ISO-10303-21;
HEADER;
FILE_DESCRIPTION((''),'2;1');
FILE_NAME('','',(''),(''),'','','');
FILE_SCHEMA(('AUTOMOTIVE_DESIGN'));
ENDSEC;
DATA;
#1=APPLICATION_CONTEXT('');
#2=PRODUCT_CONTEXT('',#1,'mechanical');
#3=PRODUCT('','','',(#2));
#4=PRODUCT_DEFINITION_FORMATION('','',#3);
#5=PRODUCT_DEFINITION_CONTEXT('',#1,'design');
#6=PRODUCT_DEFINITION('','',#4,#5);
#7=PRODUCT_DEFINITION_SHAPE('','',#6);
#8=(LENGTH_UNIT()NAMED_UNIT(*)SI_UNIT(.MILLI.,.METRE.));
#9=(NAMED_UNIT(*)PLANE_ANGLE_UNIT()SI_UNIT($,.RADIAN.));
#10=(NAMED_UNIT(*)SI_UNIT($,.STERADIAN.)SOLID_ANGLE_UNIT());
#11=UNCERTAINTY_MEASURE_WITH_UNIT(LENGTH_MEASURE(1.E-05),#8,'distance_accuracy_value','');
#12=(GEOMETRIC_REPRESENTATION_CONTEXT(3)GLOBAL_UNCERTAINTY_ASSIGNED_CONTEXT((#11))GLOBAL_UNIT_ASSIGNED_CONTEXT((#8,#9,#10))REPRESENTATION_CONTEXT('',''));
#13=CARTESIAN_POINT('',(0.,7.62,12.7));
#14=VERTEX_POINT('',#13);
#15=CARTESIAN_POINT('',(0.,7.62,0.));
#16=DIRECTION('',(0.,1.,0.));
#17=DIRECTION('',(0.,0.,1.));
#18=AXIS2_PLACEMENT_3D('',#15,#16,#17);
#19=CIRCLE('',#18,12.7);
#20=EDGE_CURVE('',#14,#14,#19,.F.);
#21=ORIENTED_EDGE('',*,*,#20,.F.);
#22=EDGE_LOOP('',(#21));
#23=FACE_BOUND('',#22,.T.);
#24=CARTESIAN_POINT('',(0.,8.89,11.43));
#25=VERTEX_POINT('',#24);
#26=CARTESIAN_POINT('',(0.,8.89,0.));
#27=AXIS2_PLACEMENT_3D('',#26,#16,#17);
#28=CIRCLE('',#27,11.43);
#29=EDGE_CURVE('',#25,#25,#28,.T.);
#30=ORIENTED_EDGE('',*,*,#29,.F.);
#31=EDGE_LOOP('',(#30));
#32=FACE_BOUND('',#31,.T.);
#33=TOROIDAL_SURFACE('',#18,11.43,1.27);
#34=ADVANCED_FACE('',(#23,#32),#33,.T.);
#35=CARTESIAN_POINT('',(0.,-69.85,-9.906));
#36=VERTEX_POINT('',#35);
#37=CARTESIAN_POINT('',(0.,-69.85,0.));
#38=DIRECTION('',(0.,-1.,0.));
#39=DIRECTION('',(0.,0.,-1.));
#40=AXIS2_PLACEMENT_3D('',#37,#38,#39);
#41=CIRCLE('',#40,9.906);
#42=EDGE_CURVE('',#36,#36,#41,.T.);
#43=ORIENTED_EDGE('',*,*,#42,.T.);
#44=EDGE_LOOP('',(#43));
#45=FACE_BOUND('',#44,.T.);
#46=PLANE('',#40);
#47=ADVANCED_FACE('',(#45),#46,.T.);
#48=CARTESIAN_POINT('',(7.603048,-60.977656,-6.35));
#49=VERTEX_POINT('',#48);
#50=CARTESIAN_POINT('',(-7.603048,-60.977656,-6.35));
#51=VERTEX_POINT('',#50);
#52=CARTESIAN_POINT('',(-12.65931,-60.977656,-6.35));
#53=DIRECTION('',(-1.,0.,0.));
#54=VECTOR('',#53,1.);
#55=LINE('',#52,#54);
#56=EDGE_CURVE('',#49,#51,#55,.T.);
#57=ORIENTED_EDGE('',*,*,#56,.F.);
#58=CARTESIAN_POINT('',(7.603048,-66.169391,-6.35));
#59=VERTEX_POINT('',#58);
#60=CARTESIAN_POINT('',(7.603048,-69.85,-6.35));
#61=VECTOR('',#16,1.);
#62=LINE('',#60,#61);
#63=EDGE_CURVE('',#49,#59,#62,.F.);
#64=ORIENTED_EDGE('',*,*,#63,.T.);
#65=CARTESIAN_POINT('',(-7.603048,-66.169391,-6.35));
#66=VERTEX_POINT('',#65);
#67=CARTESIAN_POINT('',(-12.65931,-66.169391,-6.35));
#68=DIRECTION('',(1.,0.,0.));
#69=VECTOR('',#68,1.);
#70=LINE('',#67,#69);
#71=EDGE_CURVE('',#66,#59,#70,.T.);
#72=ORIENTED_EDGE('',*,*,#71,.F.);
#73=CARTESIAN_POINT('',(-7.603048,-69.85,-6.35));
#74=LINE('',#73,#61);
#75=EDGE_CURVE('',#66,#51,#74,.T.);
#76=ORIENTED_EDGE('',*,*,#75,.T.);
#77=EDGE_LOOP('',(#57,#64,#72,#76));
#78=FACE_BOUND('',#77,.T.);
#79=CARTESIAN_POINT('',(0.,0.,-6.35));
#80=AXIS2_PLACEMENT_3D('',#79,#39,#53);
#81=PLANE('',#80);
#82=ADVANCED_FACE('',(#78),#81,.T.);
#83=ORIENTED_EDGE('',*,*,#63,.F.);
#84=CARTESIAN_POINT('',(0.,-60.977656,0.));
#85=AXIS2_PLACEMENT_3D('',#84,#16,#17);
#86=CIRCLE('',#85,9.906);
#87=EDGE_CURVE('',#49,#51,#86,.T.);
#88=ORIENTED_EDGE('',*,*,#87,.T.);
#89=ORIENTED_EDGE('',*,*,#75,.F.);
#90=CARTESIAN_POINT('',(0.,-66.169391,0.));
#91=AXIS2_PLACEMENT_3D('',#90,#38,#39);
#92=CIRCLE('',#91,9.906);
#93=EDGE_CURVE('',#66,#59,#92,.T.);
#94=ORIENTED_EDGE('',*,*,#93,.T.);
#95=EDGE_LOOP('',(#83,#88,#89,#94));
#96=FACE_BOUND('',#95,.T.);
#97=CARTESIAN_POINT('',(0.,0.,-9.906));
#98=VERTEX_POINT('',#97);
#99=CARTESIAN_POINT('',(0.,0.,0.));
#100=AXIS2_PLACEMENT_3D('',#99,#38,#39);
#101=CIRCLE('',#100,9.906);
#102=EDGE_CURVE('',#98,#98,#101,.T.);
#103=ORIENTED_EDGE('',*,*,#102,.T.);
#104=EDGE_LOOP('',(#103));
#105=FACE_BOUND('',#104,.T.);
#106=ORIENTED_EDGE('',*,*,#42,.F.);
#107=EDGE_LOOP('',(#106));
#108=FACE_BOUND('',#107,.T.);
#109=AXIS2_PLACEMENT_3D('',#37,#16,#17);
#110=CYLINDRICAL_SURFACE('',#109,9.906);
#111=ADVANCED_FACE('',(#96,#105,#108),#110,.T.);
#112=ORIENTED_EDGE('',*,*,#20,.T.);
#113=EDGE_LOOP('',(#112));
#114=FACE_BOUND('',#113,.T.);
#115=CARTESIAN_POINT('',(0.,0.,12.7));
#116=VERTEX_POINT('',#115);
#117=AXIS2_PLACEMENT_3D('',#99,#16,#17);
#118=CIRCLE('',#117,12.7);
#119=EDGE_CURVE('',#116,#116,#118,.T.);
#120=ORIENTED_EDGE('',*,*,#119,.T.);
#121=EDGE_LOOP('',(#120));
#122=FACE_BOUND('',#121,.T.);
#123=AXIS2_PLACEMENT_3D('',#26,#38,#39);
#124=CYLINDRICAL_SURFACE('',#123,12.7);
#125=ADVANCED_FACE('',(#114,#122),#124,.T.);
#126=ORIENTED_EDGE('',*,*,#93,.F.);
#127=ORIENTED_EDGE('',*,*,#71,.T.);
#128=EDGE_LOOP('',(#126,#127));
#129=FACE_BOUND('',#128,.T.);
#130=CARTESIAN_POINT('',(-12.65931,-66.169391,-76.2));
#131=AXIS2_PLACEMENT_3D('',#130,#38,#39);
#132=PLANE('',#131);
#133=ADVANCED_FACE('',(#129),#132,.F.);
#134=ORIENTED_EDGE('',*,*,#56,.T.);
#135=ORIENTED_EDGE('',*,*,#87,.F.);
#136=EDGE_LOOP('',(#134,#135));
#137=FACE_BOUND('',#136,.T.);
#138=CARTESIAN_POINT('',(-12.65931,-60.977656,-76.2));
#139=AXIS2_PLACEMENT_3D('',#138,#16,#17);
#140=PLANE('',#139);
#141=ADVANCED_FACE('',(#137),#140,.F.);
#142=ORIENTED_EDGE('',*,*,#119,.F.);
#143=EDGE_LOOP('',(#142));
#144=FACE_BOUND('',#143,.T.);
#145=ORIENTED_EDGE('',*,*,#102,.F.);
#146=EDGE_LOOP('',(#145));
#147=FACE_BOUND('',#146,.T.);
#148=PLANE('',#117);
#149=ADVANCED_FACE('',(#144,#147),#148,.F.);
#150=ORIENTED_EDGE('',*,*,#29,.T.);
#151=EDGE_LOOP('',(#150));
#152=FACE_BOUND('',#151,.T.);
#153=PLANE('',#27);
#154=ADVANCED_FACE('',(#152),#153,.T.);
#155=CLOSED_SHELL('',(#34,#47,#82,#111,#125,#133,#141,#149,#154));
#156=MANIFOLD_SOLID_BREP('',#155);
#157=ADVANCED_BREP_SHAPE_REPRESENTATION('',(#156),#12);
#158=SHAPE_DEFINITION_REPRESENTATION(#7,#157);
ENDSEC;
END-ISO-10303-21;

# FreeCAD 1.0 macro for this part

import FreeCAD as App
import Part
import Sketcher
from FreeCAD import Vector
Q = App.Units.Quantity


def edges_at(feature, points):
    """Names of the edges that pass closest to the given points."""
    edges = feature.Shape.Edges
    near = lambda p: min(range(len(edges)), key=lambda i: edges[i].distToShape(Part.Vertex(*p))[0])
    return sorted({f"Edge{near(p) + 1}" for p in points})

doc = App.newDocument("Part")
params = doc.addObject("Spreadsheet::Sheet", "Params")
for row, (alias, value) in enumerate([
    ("sketch1_diameter", "1 in"),
    ("pad1_length", "0.35 in"),
    ("sketch2_diameter", "0.78 in"),
    ("pad2_length", "2.75 in"),
    ("fillet_radius", "0.05 in"),
    ("pocket1_length", "2.75 in"),
], start=1):
    params.set(f"A{row}", alias)
    params.set(f"B{row}", "=" + value)
    params.setAlias(f"B{row}", alias)

body = doc.addObject("PartDesign::Body", "Body")

sketch1 = body.newObject("Sketcher::SketchObject", "Sketch")
sketch1.AttachmentSupport = (doc.getObject("XZ_Plane"), [""])
sketch1.MapMode = "FlatFace"
sketch1.addGeometry(Part.Circle(Vector(0, 0, 0), Vector(0, 0, 1), 12.7), False)
sketch1.addConstraint([
    Sketcher.Constraint("Coincident", 0, 3, -1, 1),
    Sketcher.Constraint("Diameter", 0, Q("1 in")),
])
sketch1.setExpression("Constraints[1]", "Params.sketch1_diameter")
pad1 = body.newObject("PartDesign::Pad", "Pad")
pad1.Profile = sketch1
pad1.setExpression("Length", "Params.pad1_length")
pad1.Reversed = True

sketch2 = body.newObject("Sketcher::SketchObject", "Sketch001")
sketch2.AttachmentSupport = (doc.getObject("XZ_Plane"), [""])
sketch2.MapMode = "FlatFace"
sketch2.addGeometry(Part.Circle(Vector(0, 0, 0), Vector(0, 0, 1), 9.906), False)
sketch2.addConstraint([
    Sketcher.Constraint("Coincident", 0, 3, -1, 1),
    Sketcher.Constraint("Diameter", 0, Q("0.78 in")),
])
sketch2.setExpression("Constraints[1]", "Params.sketch2_diameter")
pad2 = body.newObject("PartDesign::Pad", "Pad001")
pad2.Profile = sketch2
pad2.setExpression("Length", "Params.pad2_length")
doc.recompute()

fillet = body.newObject("PartDesign::Fillet", "Fillet")
fillet.Base = (pad2, edges_at(pad2, [(-12.7, 8.89, 0)]))
fillet.setExpression("Radius", "Params.fillet_radius")

sketch3 = body.newObject("Sketcher::SketchObject", "Sketch002")
sketch3.AttachmentSupport = (doc.getObject("XY_Plane"), [""])
sketch3.MapMode = "FlatFace"
sketch3.AttachmentOffset = App.Placement(Vector(0, 0, -0.25 * 25.4), App.Rotation())
sketch3.addGeometry([
    Part.LineSegment(Vector(-12.65931, -60.977656, 0), Vector(-12.65931, -66.169391, 0)),
    Part.LineSegment(Vector(-12.65931, -66.169391, 0), Vector(15.709169, -66.169391, 0)),
    Part.LineSegment(Vector(15.709169, -66.169391, 0), Vector(15.709169, -60.977656, 0)),
    Part.LineSegment(Vector(15.709169, -60.977656, 0), Vector(-12.65931, -60.977656, 0)),
], False)
sketch3.addConstraint([
    Sketcher.Constraint("Coincident", 0, 2, 1, 1),
    Sketcher.Constraint("Coincident", 1, 2, 2, 1),
    Sketcher.Constraint("Coincident", 2, 2, 3, 1),
    Sketcher.Constraint("Coincident", 3, 2, 0, 1),
    Sketcher.Constraint("Vertical", 0),
    Sketcher.Constraint("Horizontal", 1),
    Sketcher.Constraint("Vertical", 2),
    Sketcher.Constraint("Horizontal", 3),
    Sketcher.Constraint("DistanceX", 1, 1, 1, 2, Q("28.368479 mm")),
    Sketcher.Constraint("DistanceY", 0, 2, 0, 1, Q("5.191735 mm")),
    Sketcher.Constraint("DistanceX", 0, 2, -1, 1, Q("12.65931 mm")),
    Sketcher.Constraint("DistanceY", 0, 2, -1, 1, Q("66.169391 mm")),
])
pocket1 = body.newObject("PartDesign::Pocket", "Pocket")
pocket1.Profile = sketch3
pocket1.setExpression("Length", "Params.pocket1_length")

doc.recompute()
